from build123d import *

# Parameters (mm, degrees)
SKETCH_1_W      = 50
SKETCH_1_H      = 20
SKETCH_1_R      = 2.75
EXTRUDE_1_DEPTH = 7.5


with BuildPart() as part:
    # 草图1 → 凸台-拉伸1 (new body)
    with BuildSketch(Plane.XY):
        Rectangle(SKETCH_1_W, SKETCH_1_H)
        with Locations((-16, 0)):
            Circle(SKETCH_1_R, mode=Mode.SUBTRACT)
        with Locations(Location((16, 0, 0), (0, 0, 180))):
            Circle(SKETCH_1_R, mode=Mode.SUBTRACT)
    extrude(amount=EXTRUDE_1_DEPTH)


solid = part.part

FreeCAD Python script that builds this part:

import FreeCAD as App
import Part
import Sketcher

V = App.Vector
Q = App.Units.Quantity


def add_polygon(sketch, points):
    """Adds a closed chain of lines whose ends are joined by coincident constraints."""
    first, n = sketch.GeometryCount, len(points)
    for a, b in zip(points, points[1:] + points[:1]):
        sketch.addGeometry(Part.LineSegment(App.Vector(*a, 0), App.Vector(*b, 0)), False)
    for i in range(n):
        sketch.addConstraint(Sketcher.Constraint("Coincident", first + i, 2, first + (i + 1) % n, 1))

doc = App.newDocument("Part")
params = doc.addObject("Spreadsheet::Sheet", "Params")
for row, (alias, value) in enumerate([
    ("sketch1_diameter", "5.5 mm"),
    ("sketch1_width", "50 mm"),
    ("sketch1_height", "20 mm"),
    ("pad1_length", "7.5 mm"),
], start=1):
    params.set(f"A{row}", alias)
    params.set(f"B{row}", "=" + value)
    params.setAlias(f"B{row}", alias)

body = doc.addObject("PartDesign::Body", "Body")

sketch1 = body.newObject("Sketcher::SketchObject", "Sketch")
sketch1.AttachmentSupport = (doc.getObject("XY_Plane"), [""])
sketch1.MapMode = "FlatFace"
add_polygon(sketch1, [(-25, 10), (-25, -10), (25, -10), (25, 10)])
sketch1.addGeometry(Part.Circle(V(-16, 0, 0), V(0, 0, 1), 2.8), False)
sketch1.addGeometry(Part.Circle(V(16, 0, 0), V(0, 0, 1), 2.8), False)
sketch1.addConstraint([
    Sketcher.Constraint("Vertical", 0),
    Sketcher.Constraint("Horizontal", 1),
    Sketcher.Constraint("Vertical", 2),
    Sketcher.Constraint("Horizontal", 3),
    Sketcher.Constraint("Equal", 4, 5),
    Sketcher.Constraint("Symmetric", 4, 3, 5, 3, -1, 1),
    Sketcher.Constraint("Symmetric", 0, 2, 2, 2, -1, 1),
    Sketcher.Constraint("PointOnObject", 4, 3, -1),
    Sketcher.Constraint("Diameter", 4, Q("5.5 mm")),
    Sketcher.Constraint("DistanceX", 1, 1, 1, 2, Q("50 mm")),
    Sketcher.Constraint("DistanceY", 0, 2, 0, 1, Q("20 mm")),
    Sketcher.Constraint("DistanceX", 4, 3, -1, 1, Q("16 mm")),
])
sketch1.setExpression("Constraints[12]", "Params.sketch1_diameter")
sketch1.setExpression("Constraints[13]", "Params.sketch1_width")
sketch1.setExpression("Constraints[14]", "Params.sketch1_height")
pad1 = body.newObject("PartDesign::Pad", "Pad")
pad1.Profile = sketch1
pad1.setExpression("Length", "Params.pad1_length")

doc.recompute()
